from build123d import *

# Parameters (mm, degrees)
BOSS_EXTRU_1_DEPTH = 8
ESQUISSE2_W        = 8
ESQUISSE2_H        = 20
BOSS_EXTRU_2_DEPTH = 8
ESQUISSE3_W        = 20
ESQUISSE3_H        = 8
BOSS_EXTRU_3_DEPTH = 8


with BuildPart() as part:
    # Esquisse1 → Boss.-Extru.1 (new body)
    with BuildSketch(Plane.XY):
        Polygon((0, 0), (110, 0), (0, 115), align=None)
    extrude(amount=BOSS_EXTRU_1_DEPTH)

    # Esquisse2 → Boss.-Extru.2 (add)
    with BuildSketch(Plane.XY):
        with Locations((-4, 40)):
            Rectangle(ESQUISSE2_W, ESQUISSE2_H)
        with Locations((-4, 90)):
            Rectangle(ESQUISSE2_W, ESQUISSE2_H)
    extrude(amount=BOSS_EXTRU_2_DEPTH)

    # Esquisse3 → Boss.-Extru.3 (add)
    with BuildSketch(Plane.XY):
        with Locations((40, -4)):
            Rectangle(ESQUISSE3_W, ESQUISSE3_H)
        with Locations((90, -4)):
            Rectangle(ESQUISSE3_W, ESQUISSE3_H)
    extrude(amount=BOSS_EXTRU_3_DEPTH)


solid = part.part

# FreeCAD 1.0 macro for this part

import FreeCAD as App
import Part
import Sketcher

doc = App.newDocument("Part")
body = doc.addObject("PartDesign::Body", "Body")

# Sketch on XY plane
sketch1 = body.newObject("Sketcher::SketchObject", "Sketch")
sketch1.AttachmentSupport = (doc.getObject("XY_Plane"), [""])
sketch1.MapMode = "FlatFace"
sketch1.addGeometry(Part.LineSegment(App.Vector(0, 0, 0), App.Vector(110, 0, 0)), False)
sketch1.addGeometry(Part.LineSegment(App.Vector(110, 0, 0), App.Vector(0, 115, 0)), False)
sketch1.addGeometry(Part.LineSegment(App.Vector(0, 115, 0), App.Vector(0, 0, 0)), False)
sketch1.addConstraint(Sketcher.Constraint("Coincident", 0, 2, 1, 1))
sketch1.addConstraint(Sketcher.Constraint("Coincident", 1, 2, 2, 1))
sketch1.addConstraint(Sketcher.Constraint("Coincident", 2, 2, 0, 1))
sketch1.addConstraint(Sketcher.Constraint("Horizontal", 0))
sketch1.addConstraint(Sketcher.Constraint("Vertical", 2))
sketch1.addConstraint(Sketcher.Constraint("Coincident", 2, 2, -1, 1))
sketch1.addConstraint(Sketcher.Constraint("DistanceX", 0, 1, 0, 2, 110.0))
sketch1.addConstraint(Sketcher.Constraint("DistanceY", 2, 2, 2, 1, 115.0))
pad1 = body.newObject("PartDesign::Pad", "Pad")
pad1.Profile = sketch1
pad1.Length = 8

# Sketch on XY plane
sketch2 = body.newObject("Sketcher::SketchObject", "Sketch001")
sketch2.AttachmentSupport = (doc.getObject("XY_Plane"), [""])
sketch2.MapMode = "FlatFace"
sketch2.addGeometry(Part.LineSegment(App.Vector(-8, 50, 0), App.Vector(-8, 30, 0)), False)
sketch2.addGeometry(Part.LineSegment(App.Vector(-8, 30, 0), App.Vector(0, 30, 0)), False)
sketch2.addGeometry(Part.LineSegment(App.Vector(0, 30, 0), App.Vector(0, 50, 0)), False)
sketch2.addGeometry(Part.LineSegment(App.Vector(0, 50, 0), App.Vector(-8, 50, 0)), False)
sketch2.addGeometry(Part.LineSegment(App.Vector(-8, 100, 0), App.Vector(-8, 80, 0)), False)
sketch2.addGeometry(Part.LineSegment(App.Vector(-8, 80, 0), App.Vector(0, 80, 0)), False)
sketch2.addGeometry(Part.LineSegment(App.Vector(0, 80, 0), App.Vector(0, 100, 0)), False)
sketch2.addGeometry(Part.LineSegment(App.Vector(0, 100, 0), App.Vector(-8, 100, 0)), False)
sketch2.addConstraint(Sketcher.Constraint("Coincident", 0, 2, 1, 1))
sketch2.addConstraint(Sketcher.Constraint("Coincident", 1, 2, 2, 1))
sketch2.addConstraint(Sketcher.Constraint("Coincident", 2, 2, 3, 1))
sketch2.addConstraint(Sketcher.Constraint("Coincident", 3, 2, 0, 1))
sketch2.addConstraint(Sketcher.Constraint("Coincident", 4, 2, 5, 1))
sketch2.addConstraint(Sketcher.Constraint("Coincident", 5, 2, 6, 1))
sketch2.addConstraint(Sketcher.Constraint("Coincident", 6, 2, 7, 1))
sketch2.addConstraint(Sketcher.Constraint("Coincident", 7, 2, 4, 1))
sketch2.addConstraint(Sketcher.Constraint("Vertical", 0))
sketch2.addConstraint(Sketcher.Constraint("Horizontal", 1))
sketch2.addConstraint(Sketcher.Constraint("Vertical", 2))
sketch2.addConstraint(Sketcher.Constraint("Horizontal", 3))
sketch2.addConstraint(Sketcher.Constraint("Vertical", 4))
sketch2.addConstraint(Sketcher.Constraint("Horizontal", 5))
sketch2.addConstraint(Sketcher.Constraint("Vertical", 6))
sketch2.addConstraint(Sketcher.Constraint("Horizontal", 7))
sketch2.addConstraint(Sketcher.Constraint("PointOnObject", 1, 2, -2))
sketch2.addConstraint(Sketcher.Constraint("PointOnObject", 5, 2, -2))
sketch2.addConstraint(Sketcher.Constraint("Vertical", 3, 2, 4, 2))
sketch2.addConstraint(Sketcher.Constraint("Equal", 2, 4))
sketch2.addConstraint(Sketcher.Constraint("DistanceX", 1, 1, 1, 2, 8.0))
sketch2.addConstraint(Sketcher.Constraint("DistanceY", 0, 2, 0, 1, 20.0))
sketch2.addConstraint(Sketcher.Constraint("DistanceY", -1, 1, 0, 2, 30.0))
sketch2.addConstraint(Sketcher.Constraint("DistanceY", -1, 1, 4, 2, 80.0))
pad2 = body.newObject("PartDesign::Pad", "Pad001")
pad2.Profile = sketch2
pad2.Length = 8

# Sketch on XY plane
sketch3 = body.newObject("Sketcher::SketchObject", "Sketch002")
sketch3.AttachmentSupport = (doc.getObject("XY_Plane"), [""])
sketch3.MapMode = "FlatFace"
sketch3.addGeometry(Part.LineSegment(App.Vector(30, 0, 0), App.Vector(30, -8, 0)), False)
sketch3.addGeometry(Part.LineSegment(App.Vector(30, -8, 0), App.Vector(50, -8, 0)), False)
sketch3.addGeometry(Part.LineSegment(App.Vector(50, -8, 0), App.Vector(50, 0, 0)), False)
sketch3.addGeometry(Part.LineSegment(App.Vector(50, 0, 0), App.Vector(30, 0, 0)), False)
sketch3.addGeometry(Part.LineSegment(App.Vector(80, 0, 0), App.Vector(80, -8, 0)), False)
sketch3.addGeometry(Part.LineSegment(App.Vector(80, -8, 0), App.Vector(100, -8, 0)), False)
sketch3.addGeometry(Part.LineSegment(App.Vector(100, -8, 0), App.Vector(100, 0, 0)), False)
sketch3.addGeometry(Part.LineSegment(App.Vector(100, 0, 0), App.Vector(80, 0, 0)), False)
sketch3.addConstraint(Sketcher.Constraint("Coincident", 0, 2, 1, 1))
sketch3.addConstraint(Sketcher.Constraint("Coincident", 1, 2, 2, 1))
sketch3.addConstraint(Sketcher.Constraint("Coincident", 2, 2, 3, 1))
sketch3.addConstraint(Sketcher.Constraint("Coincident", 3, 2, 0, 1))
sketch3.addConstraint(Sketcher.Constraint("Coincident", 4, 2, 5, 1))
sketch3.addConstraint(Sketcher.Constraint("Coincident", 5, 2, 6, 1))
sketch3.addConstraint(Sketcher.Constraint("Coincident", 6, 2, 7, 1))
sketch3.addConstraint(Sketcher.Constraint("Coincident", 7, 2, 4, 1))
sketch3.addConstraint(Sketcher.Constraint("Vertical", 0))
sketch3.addConstraint(Sketcher.Constraint("Horizontal", 1))
sketch3.addConstraint(Sketcher.Constraint("Vertical", 2))
sketch3.addConstraint(Sketcher.Constraint("Horizontal", 3))
sketch3.addConstraint(Sketcher.Constraint("Vertical", 4))
sketch3.addConstraint(Sketcher.Constraint("Horizontal", 5))
sketch3.addConstraint(Sketcher.Constraint("Vertical", 6))
sketch3.addConstraint(Sketcher.Constraint("Horizontal", 7))
sketch3.addConstraint(Sketcher.Constraint("PointOnObject", 2, 2, -1))
sketch3.addConstraint(Sketcher.Constraint("PointOnObject", 6, 2, -1))
sketch3.addConstraint(Sketcher.Constraint("Horizontal", 1, 2, 4, 2))
sketch3.addConstraint(Sketcher.Constraint("Equal", 3, 5))
sketch3.addConstraint(Sketcher.Constraint("DistanceX", 1, 1, 1, 2, 20.0))
sketch3.addConstraint(Sketcher.Constraint("DistanceY", 0, 2, 0, 1, 8.0))
sketch3.addConstraint(Sketcher.Constraint("DistanceX", -1, 1, 0, 2, 30.0))
sketch3.addConstraint(Sketcher.Constraint("DistanceX", -1, 1, 4, 2, 80.0))
pad3 = body.newObject("PartDesign::Pad", "Pad002")
pad3.Profile = sketch3
pad3.Length = 8

doc.recompute()
